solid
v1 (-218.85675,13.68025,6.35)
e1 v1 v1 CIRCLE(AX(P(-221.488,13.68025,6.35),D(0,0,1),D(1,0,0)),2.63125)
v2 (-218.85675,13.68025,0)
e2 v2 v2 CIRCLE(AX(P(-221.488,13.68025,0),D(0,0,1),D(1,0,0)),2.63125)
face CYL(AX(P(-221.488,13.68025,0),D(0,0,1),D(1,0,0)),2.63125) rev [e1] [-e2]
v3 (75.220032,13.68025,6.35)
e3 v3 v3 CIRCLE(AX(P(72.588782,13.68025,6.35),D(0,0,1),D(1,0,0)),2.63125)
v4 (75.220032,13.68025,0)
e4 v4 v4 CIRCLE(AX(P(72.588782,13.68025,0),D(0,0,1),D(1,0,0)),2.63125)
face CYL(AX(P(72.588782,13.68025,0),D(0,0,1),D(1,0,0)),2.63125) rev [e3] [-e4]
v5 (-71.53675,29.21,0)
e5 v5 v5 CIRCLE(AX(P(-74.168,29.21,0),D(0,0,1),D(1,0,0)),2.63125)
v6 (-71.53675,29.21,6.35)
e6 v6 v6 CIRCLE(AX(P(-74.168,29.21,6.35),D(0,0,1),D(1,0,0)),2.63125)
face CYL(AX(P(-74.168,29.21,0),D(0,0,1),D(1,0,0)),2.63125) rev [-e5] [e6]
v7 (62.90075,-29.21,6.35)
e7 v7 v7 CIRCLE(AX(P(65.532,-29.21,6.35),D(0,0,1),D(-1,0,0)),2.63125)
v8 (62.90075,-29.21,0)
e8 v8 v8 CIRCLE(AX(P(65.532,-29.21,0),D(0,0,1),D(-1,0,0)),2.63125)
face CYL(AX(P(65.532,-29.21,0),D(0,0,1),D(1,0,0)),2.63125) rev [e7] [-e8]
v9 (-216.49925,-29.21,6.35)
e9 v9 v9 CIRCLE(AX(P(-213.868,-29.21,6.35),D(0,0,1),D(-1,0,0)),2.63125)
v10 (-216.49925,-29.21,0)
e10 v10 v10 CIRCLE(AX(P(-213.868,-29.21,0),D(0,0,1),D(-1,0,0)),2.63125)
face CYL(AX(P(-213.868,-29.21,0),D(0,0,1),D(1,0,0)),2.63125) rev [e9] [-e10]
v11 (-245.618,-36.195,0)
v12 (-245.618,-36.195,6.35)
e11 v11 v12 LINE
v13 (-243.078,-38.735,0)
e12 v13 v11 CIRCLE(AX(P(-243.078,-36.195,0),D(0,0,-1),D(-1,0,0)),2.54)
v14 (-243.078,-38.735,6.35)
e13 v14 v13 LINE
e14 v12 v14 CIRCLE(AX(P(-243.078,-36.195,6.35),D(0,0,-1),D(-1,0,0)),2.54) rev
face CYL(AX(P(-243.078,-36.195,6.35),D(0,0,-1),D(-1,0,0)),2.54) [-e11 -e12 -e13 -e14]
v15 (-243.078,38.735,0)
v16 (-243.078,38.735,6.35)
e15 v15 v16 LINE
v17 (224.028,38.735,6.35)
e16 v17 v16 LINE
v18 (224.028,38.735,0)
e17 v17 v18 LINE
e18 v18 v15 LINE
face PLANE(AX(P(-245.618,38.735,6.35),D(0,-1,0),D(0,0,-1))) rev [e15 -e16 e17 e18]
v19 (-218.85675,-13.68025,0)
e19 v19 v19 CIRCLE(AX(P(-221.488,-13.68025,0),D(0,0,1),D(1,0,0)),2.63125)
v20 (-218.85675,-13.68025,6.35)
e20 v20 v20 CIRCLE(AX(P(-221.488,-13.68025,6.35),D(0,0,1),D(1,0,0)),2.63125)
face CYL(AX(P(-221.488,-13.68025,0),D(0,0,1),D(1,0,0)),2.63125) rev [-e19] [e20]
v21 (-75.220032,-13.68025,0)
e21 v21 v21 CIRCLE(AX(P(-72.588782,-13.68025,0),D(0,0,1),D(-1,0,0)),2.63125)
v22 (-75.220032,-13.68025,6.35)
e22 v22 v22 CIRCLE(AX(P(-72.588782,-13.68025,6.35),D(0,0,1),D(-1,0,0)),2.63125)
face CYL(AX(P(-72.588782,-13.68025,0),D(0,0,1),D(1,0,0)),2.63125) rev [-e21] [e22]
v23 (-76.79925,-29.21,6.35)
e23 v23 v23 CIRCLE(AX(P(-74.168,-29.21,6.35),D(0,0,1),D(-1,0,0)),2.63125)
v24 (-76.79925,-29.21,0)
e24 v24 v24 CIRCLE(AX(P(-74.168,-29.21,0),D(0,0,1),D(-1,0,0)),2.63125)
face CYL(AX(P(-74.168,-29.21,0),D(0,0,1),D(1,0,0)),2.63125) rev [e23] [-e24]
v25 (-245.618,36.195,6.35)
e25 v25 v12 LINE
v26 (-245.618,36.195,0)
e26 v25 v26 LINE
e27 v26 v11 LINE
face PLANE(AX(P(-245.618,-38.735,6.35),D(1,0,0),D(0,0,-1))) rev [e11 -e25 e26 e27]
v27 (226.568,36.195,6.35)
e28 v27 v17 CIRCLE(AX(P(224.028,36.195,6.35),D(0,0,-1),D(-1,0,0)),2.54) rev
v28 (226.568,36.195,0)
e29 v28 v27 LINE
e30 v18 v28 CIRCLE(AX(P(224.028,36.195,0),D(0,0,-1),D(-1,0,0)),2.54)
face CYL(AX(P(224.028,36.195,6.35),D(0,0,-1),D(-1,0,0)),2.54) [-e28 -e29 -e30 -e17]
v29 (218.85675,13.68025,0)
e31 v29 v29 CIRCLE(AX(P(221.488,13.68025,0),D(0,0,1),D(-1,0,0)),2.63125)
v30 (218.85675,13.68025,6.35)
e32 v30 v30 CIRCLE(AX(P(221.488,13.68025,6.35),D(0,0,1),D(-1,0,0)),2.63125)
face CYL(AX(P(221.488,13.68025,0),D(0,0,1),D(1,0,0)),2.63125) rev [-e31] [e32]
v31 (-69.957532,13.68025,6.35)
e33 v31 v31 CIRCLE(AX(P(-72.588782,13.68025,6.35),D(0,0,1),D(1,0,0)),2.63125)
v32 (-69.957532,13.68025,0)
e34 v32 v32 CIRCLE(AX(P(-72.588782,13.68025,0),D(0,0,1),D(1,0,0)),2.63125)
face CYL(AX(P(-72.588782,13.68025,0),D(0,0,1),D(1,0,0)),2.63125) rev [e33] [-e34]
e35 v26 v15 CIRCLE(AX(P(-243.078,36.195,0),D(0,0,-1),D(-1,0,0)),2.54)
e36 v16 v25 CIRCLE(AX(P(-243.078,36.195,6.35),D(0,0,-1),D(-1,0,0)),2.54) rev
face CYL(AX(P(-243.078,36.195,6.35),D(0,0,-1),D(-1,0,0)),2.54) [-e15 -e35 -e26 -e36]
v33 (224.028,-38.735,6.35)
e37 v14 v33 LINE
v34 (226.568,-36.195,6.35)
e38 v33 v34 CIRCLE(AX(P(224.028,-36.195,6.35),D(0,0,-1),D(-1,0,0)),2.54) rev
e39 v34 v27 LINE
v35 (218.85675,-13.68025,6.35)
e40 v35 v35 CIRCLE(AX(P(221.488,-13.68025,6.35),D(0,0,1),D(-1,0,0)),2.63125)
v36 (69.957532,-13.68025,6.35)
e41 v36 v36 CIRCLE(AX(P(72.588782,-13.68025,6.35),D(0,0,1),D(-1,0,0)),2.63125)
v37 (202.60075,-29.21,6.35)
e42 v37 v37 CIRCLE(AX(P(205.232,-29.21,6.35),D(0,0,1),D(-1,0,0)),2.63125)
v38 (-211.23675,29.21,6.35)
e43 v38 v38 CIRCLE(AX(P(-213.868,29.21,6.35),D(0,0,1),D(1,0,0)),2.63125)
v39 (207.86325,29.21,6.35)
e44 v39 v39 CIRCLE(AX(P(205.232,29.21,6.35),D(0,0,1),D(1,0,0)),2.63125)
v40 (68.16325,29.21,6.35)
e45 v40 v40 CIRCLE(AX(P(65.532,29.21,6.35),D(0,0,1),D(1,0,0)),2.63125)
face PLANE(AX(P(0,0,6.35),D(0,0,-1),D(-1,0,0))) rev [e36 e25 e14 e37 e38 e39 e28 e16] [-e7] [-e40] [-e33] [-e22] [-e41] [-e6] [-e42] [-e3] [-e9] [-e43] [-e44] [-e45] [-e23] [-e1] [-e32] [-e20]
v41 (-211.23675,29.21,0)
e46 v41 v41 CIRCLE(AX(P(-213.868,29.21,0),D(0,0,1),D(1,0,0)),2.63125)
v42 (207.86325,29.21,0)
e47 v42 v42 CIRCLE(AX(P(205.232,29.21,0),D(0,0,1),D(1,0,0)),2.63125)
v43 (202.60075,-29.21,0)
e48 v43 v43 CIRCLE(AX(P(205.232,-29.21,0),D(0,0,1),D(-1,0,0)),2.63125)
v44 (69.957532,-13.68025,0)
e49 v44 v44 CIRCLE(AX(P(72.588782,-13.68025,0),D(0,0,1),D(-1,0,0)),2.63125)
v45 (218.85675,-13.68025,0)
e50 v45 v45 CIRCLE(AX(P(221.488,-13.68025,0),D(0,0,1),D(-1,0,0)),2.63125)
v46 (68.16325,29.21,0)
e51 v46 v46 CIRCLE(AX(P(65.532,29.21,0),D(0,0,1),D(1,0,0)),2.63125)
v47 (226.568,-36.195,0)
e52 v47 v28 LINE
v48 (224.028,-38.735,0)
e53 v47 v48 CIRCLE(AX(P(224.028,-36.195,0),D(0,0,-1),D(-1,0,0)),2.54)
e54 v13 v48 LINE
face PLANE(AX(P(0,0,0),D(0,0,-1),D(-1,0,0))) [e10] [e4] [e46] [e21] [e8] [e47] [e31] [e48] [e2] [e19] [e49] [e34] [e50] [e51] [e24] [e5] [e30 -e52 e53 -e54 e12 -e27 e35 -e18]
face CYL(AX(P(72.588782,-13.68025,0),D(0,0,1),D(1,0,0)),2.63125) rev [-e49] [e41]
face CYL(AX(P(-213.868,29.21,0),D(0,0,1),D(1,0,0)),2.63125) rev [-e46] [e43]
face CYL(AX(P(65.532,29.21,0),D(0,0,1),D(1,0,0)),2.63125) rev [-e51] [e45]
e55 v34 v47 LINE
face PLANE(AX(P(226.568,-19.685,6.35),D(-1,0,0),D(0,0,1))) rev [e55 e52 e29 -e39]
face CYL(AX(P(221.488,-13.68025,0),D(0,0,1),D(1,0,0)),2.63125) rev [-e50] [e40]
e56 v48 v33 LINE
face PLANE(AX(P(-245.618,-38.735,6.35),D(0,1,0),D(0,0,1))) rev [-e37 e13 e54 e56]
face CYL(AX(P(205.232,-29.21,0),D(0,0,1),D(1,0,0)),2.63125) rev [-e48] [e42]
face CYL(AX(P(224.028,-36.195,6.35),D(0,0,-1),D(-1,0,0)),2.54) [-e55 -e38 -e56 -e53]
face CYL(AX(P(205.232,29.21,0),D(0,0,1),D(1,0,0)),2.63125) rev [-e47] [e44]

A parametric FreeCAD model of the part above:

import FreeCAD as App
import Part
import Sketcher
from FreeCAD import Vector
Q = App.Units.Quantity


def edges_at(feature, points):
    """Names of the edges that pass closest to the given points."""
    edges = feature.Shape.Edges
    near = lambda p: min(range(len(edges)), key=lambda i: edges[i].distToShape(Part.Vertex(*p))[0])
    return sorted({f"Edge{near(p) + 1}" for p in points})


def add_polygon(sketch, points):
    """Adds a closed chain of lines whose ends are joined by coincident constraints."""
    first, n = sketch.GeometryCount, len(points)
    for a, b in zip(points, points[1:] + points[:1]):
        sketch.addGeometry(Part.LineSegment(App.Vector(*a, 0), App.Vector(*b, 0)), False)
    for i in range(n):
        sketch.addConstraint(Sketcher.Constraint("Coincident", first + i, 2, first + (i + 1) % n, 1))

doc = App.newDocument("Part")
body = doc.addObject("PartDesign::Body", "Body")

sketch1 = body.newObject("Sketcher::SketchObject", "Sketch")
sketch1.AttachmentSupport = (doc.getObject("XY_Plane"), [""])
sketch1.MapMode = "FlatFace"
add_polygon(sketch1, [(-246, 39), (-246, -39), (227, -39), (227, 39)])
sketch1.addConstraint([
    Sketcher.Constraint("Vertical", 0),
    Sketcher.Constraint("Horizontal", 1),
    Sketcher.Constraint("Vertical", 2),
    Sketcher.Constraint("Horizontal", 3),
    Sketcher.Constraint("DistanceX", 1, 1, 1, 2, Q("18.59 in")),
    Sketcher.Constraint("DistanceY", 0, 2, 0, 1, Q("3.05 in")),
    Sketcher.Constraint("DistanceX", 0, 2, -1, 1, Q("9.67 in")),
    Sketcher.Constraint("DistanceY", 0, 2, -1, 1, Q("1.525 in")),
])
pad1 = body.newObject("PartDesign::Pad", "Pad")
pad1.Profile = sketch1
pad1.Length = Q("0.25 in")

sketch2 = body.newObject("Sketcher::SketchObject", "Sketch001")
sketch2.AttachmentSupport = (doc.getObject("XY_Plane"), [""])
sketch2.MapMode = "FlatFace"
sketch2.AttachmentOffset = App.Placement(Vector(0, 0, 0.25 * 25.4), App.Rotation())
sketch2.addGeometry([
    Part.Circle(Vector(-221.5, 13.7, 0), Vector(0, 0, 1), 2.6),
    Part.Circle(Vector(-221.5, -13.7, 0), Vector(0, 0, 1), 2.6),
    Part.Circle(Vector(221.5, -13.7, 0), Vector(0, 0, 1), 2.6),
    Part.Circle(Vector(221.5, 13.7, 0), Vector(0, 0, 1), 2.6),
    Part.Circle(Vector(-72.6, 13.7, 0), Vector(0, 0, 1), 2.6),
    Part.Circle(Vector(-72.6, -13.7, 0), Vector(0, 0, 1), 2.6),
    Part.Circle(Vector(72.6, 13.7, 0), Vector(0, 0, 1), 2.6),
    Part.Circle(Vector(72.6, -13.7, 0), Vector(0, 0, 1), 2.6),
], False)
sketch2.addConstraint([
    Sketcher.Constraint("Equal", 0, 1),
    Sketcher.Constraint("Equal", 1, 2),
    Sketcher.Constraint("Equal", 2, 3),
    Sketcher.Constraint("Equal", 3, 4),
    Sketcher.Constraint("Equal", 4, 5),
    Sketcher.Constraint("Equal", 5, 6),
    Sketcher.Constraint("Equal", 6, 7),
    Sketcher.Constraint("Symmetric", 0, 3, 2, 3, -1, 1),
    Sketcher.Constraint("Symmetric", 1, 3, 3, 3, -1, 1),
    Sketcher.Constraint("Symmetric", 5, 3, 6, 3, -1, 1),
    Sketcher.Constraint("Symmetric", 4, 3, 7, 3, -1, 1),
    Sketcher.Constraint("Symmetric", 1, 3, 2, 3, -2),
    Sketcher.Constraint("Symmetric", 4, 3, 6, 3, -2),
    Sketcher.Constraint("Horizontal", 3, 3, 4, 3),
    Sketcher.Constraint("Diameter", 0, 5.2625),
    Sketcher.Constraint("DistanceX", 0, 3, -1, 1, Q("8.72 in")),
    Sketcher.Constraint("DistanceY", 1, 3, 0, 3, 27.3605),
    Sketcher.Constraint("DistanceX", 4, 3, -1, 1, 72.588782),
])
pocket1 = body.newObject("PartDesign::Pocket", "Pocket")
pocket1.Profile = sketch2
pocket1.Type = "ThroughAll"

sketch3 = body.newObject("Sketcher::SketchObject", "Sketch002")
sketch3.AttachmentSupport = (doc.getObject("XY_Plane"), [""])
sketch3.MapMode = "FlatFace"
sketch3.AttachmentOffset = App.Placement(Vector(0, 0, 0.25 * 25.4), App.Rotation())
sketch3.addGeometry([
    Part.Circle(Vector(-213.9, 29.2, 0), Vector(0, 0, 1), 2.6),
    Part.Circle(Vector(-74.2, 29.2, 0), Vector(0, 0, 1), 2.6),
    Part.Circle(Vector(65.5, 29.2, 0), Vector(0, 0, 1), 2.6),
    Part.Circle(Vector(205.2, 29.2, 0), Vector(0, 0, 1), 2.6),
    Part.Circle(Vector(205.2, -29.2, 0), Vector(0, 0, 1), 2.6),
    Part.Circle(Vector(65.5, -29.2, 0), Vector(0, 0, 1), 2.6),
    Part.Circle(Vector(-74.2, -29.2, 0), Vector(0, 0, 1), 2.6),
    Part.Circle(Vector(-213.9, -29.2, 0), Vector(0, 0, 1), 2.6),
], False)
sketch3.addConstraint([
    Sketcher.Constraint("Equal", 0, 1),
    Sketcher.Constraint("Equal", 1, 2),
    Sketcher.Constraint("Equal", 2, 3),
    Sketcher.Constraint("Equal", 3, 4),
    Sketcher.Constraint("Equal", 4, 5),
    Sketcher.Constraint("Equal", 5, 6),
    Sketcher.Constraint("Equal", 6, 7),
    Sketcher.Constraint("Symmetric", 3, 3, 4, 3, -1),
    Sketcher.Constraint("Symmetric", 2, 3, 5, 3, -1),
    Sketcher.Constraint("Symmetric", 1, 3, 6, 3, -1),
    Sketcher.Constraint("Symmetric", 0, 3, 7, 3, -1),
    Sketcher.Constraint("Horizontal", 0, 3, 1, 3),
    Sketcher.Constraint("Horizontal", 1, 3, 2, 3),
    Sketcher.Constraint("Horizontal", 2, 3, 3, 3),
    Sketcher.Constraint("DistanceX", 0, 3, 2, 3, Q("11 in")),
    Sketcher.Constraint("DistanceX", 1, 3, 3, 3, Q("11 in")),
    Sketcher.Constraint("DistanceX", 0, 3, 1, 3, Q("5.5 in")),
    Sketcher.Constraint("DistanceY", 4, 3, 3, 3, Q("2.3 in")),
    Sketcher.Constraint("Diameter", 0, 5.2625),
    Sketcher.Constraint("DistanceX", 0, 3, -1, 1, Q("8.42 in")),
])
pocket2 = body.newObject("PartDesign::Pocket", "Pocket001")
pocket2.Profile = sketch3
pocket2.Type = "ThroughAll"
doc.recompute()

fillet = body.newObject("PartDesign::Fillet", "Fillet")
fillet.Base = (pocket2, edges_at(pocket2, [
    (226.568, -38.735, 3.175),
    (-245.618, -38.735, 3.175),
    (-245.618, 38.735, 3.175),
    (226.568, 38.735, 3.175),
]))
fillet.Radius = Q("0.1 in")

doc.recompute()
